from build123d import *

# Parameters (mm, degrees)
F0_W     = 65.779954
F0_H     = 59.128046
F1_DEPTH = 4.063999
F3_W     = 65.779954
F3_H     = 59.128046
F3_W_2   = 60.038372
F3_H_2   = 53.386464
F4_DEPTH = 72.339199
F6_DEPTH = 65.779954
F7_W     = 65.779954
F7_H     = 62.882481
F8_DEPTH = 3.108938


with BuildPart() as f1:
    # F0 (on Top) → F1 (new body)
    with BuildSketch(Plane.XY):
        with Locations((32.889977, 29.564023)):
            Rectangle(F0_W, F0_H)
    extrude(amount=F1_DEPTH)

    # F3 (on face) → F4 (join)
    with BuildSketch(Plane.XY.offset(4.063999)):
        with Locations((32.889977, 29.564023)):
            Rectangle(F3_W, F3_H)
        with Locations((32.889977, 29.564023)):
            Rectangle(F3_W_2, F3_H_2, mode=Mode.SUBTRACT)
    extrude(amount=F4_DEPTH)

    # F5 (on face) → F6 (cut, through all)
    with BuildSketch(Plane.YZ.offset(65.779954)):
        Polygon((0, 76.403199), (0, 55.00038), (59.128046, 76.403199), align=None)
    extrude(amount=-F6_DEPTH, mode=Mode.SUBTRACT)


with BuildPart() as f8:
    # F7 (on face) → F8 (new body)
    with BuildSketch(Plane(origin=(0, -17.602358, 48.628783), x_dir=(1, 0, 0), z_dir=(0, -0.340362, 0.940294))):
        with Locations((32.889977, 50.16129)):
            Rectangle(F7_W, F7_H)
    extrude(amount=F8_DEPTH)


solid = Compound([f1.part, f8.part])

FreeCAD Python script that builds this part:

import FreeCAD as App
import Part
import Sketcher
Q = App.Units.Quantity

doc = App.newDocument("Part")
body = doc.addObject("PartDesign::Body", "Body")

# Sketch on XY plane
sketch1 = doc.addObject("Sketcher::SketchObject", "Sketch")
body.addObject(sketch1)
sketch1.AttachmentSupport = (doc.XY_Plane, [""])
sketch1.MapMode = "FlatFace"
sketch1.addGeometry([
    Part.LineSegment(App.Vector(0, 59.128046, 0), App.Vector(0, 0, 0)),
    Part.LineSegment(App.Vector(0, 0, 0), App.Vector(65.779954, 0, 0)),
    Part.LineSegment(App.Vector(65.779954, 0, 0), App.Vector(65.779954, 59.128046, 0)),
    Part.LineSegment(App.Vector(65.779954, 59.128046, 0), App.Vector(0, 59.128046, 0)),
], False)
sketch1.addConstraint([
    Sketcher.Constraint("Coincident", 0, 2, 1, 1),
    Sketcher.Constraint("Coincident", 1, 2, 2, 1),
    Sketcher.Constraint("Coincident", 2, 2, 3, 1),
    Sketcher.Constraint("Coincident", 3, 2, 0, 1),
    Sketcher.Constraint("Vertical", 0),
    Sketcher.Constraint("Horizontal", 1),
    Sketcher.Constraint("Vertical", 2),
    Sketcher.Constraint("Horizontal", 3),
    Sketcher.Constraint("Coincident", 0, 2, -1, 1),
    Sketcher.Constraint("DistanceX", 1, 1, 1, 2, 65.779954),
    Sketcher.Constraint("DistanceY", 0, 2, 0, 1, 59.128046),
])
pad1 = doc.addObject("PartDesign::Pad", "Pad")
body.addObject(pad1)
pad1.Profile = sketch1
pad1.Length = Q("0.16 in")

# Sketch on XY plane
sketch2 = doc.addObject("Sketcher::SketchObject", "Sketch001")
body.addObject(sketch2)
sketch2.AttachmentSupport = (doc.XY_Plane, [""])
sketch2.MapMode = "FlatFace"
sketch2.AttachmentOffset = App.Placement(App.Vector(0, 0, 0.16 * 25.4), App.Rotation())
sketch2.addGeometry([
    Part.LineSegment(App.Vector(0, 59.128046, 0), App.Vector(0, 0, 0)),  # 0
    Part.LineSegment(App.Vector(0, 0, 0), App.Vector(65.779954, 0, 0)),  # 1
    Part.LineSegment(App.Vector(65.779954, 0, 0), App.Vector(65.779954, 59.128046, 0)),  # 2
    Part.LineSegment(App.Vector(65.779954, 59.128046, 0), App.Vector(0, 59.128046, 0)),  # 3
    Part.LineSegment(App.Vector(62.909163, 2.870791, 0), App.Vector(2.870791, 2.870791, 0)),  # 4
    Part.LineSegment(App.Vector(2.870791, 2.870791, 0), App.Vector(2.870791, 56.257255, 0)),  # 5
    Part.LineSegment(App.Vector(2.870791, 56.257255, 0), App.Vector(62.909163, 56.257255, 0)),  # 6
    Part.LineSegment(App.Vector(62.909163, 56.257255, 0), App.Vector(62.909163, 2.870791, 0)),  # 7
], False)
sketch2.addConstraint([
    Sketcher.Constraint("Coincident", 0, 2, 1, 1),
    Sketcher.Constraint("Coincident", 1, 2, 2, 1),
    Sketcher.Constraint("Coincident", 2, 2, 3, 1),
    Sketcher.Constraint("Coincident", 3, 2, 0, 1),
    Sketcher.Constraint("Coincident", 4, 2, 5, 1),
    Sketcher.Constraint("Coincident", 5, 2, 6, 1),
    Sketcher.Constraint("Coincident", 6, 2, 7, 1),
    Sketcher.Constraint("Coincident", 7, 2, 4, 1),
    Sketcher.Constraint("Vertical", 0),
    Sketcher.Constraint("Horizontal", 1),
    Sketcher.Constraint("Vertical", 2),
    Sketcher.Constraint("Horizontal", 3),
    Sketcher.Constraint("Horizontal", 4),
    Sketcher.Constraint("Vertical", 5),
    Sketcher.Constraint("Horizontal", 6),
    Sketcher.Constraint("Vertical", 7),
    Sketcher.Constraint("Coincident", 0, 2, -1, 1),
    Sketcher.Constraint("DistanceX", 1, 1, 1, 2, 65.779954),
    Sketcher.Constraint("DistanceX", 4, 2, 4, 1, 60.038372),
    Sketcher.Constraint("DistanceY", 0, 2, 0, 1, 59.128046),
    Sketcher.Constraint("DistanceY", 5, 1, 5, 2, 53.386464),
    Sketcher.Constraint("DistanceX", -1, 1, 4, 2, 2.870791),
    Sketcher.Constraint("DistanceY", -1, 1, 4, 2, 2.870791),
])
pad2 = doc.addObject("PartDesign::Pad", "Pad001")
body.addObject(pad2)
pad2.Profile = sketch2
pad2.Length = Q("2.848 in")

# Sketch on YZ plane
sketch3 = doc.addObject("Sketcher::SketchObject", "Sketch002")
body.addObject(sketch3)
sketch3.AttachmentSupport = (doc.YZ_Plane, [""])
sketch3.MapMode = "FlatFace"
sketch3.AttachmentOffset = App.Placement(App.Vector(0, 0, 65.779954), App.Rotation())
sketch3.addGeometry([
    Part.LineSegment(App.Vector(0, 76.403199, 0), App.Vector(0, 55.00038, 0)),
    Part.LineSegment(App.Vector(0, 55.00038, 0), App.Vector(59.128046, 76.403199, 0)),
    Part.LineSegment(App.Vector(59.128046, 76.403199, 0), App.Vector(0, 76.403199, 0)),
], False)
sketch3.addConstraint([
    Sketcher.Constraint("Coincident", 0, 2, 1, 1),
    Sketcher.Constraint("Coincident", 1, 2, 2, 1),
    Sketcher.Constraint("Coincident", 2, 2, 0, 1),
    Sketcher.Constraint("Vertical", 0),
    Sketcher.Constraint("Horizontal", 2),
    Sketcher.Constraint("PointOnObject", 0, 2, -2),
    Sketcher.Constraint("DistanceY", -1, 1, 1, 2, Q("3.008 in")),
    Sketcher.Constraint("DistanceY", 0, 2, 0, 1, 21.402819),
    Sketcher.Constraint("Distance", 1, 62.882482),
])
pocket1 = doc.addObject("PartDesign::Pocket", "Pocket")
body.addObject(pocket1)
pocket1.Profile = sketch3
pocket1.Type = "ThroughAll"
body2 = doc.addObject("PartDesign::Body", "Body001")

# Sketch on an angled plane
sketch4 = doc.addObject("Sketcher::SketchObject", "Sketch003")
body2.addObject(sketch4)
sketch4.Placement = App.Placement(App.Vector(0, -17.602358, 48.628783), App.Rotation(App.Vector(1, 0, 0), App.Vector(0, 0.940294424, 0.340362154), App.Vector(0, -0.340362154, 0.940294424), "ZXY"))
sketch4.addGeometry([
    Part.LineSegment(App.Vector(0, 81.60253, 0), App.Vector(0, 18.720049, 0)),
    Part.LineSegment(App.Vector(0, 18.720049, 0), App.Vector(65.779954, 18.720049, 0)),
    Part.LineSegment(App.Vector(65.779954, 18.720049, 0), App.Vector(65.779954, 81.60253, 0)),
    Part.LineSegment(App.Vector(65.779954, 81.60253, 0), App.Vector(0, 81.60253, 0)),
], False)
sketch4.addConstraint([
    Sketcher.Constraint("Coincident", 0, 2, 1, 1),
    Sketcher.Constraint("Coincident", 1, 2, 2, 1),
    Sketcher.Constraint("Coincident", 2, 2, 3, 1),
    Sketcher.Constraint("Coincident", 3, 2, 0, 1),
    Sketcher.Constraint("Vertical", 0),
    Sketcher.Constraint("Horizontal", 1),
    Sketcher.Constraint("Vertical", 2),
    Sketcher.Constraint("Horizontal", 3),
    Sketcher.Constraint("PointOnObject", 0, 2, -2),
    Sketcher.Constraint("DistanceY", 0, 2, 0, 1, 62.882481),
    Sketcher.Constraint("DistanceX", 1, 1, 1, 2, 65.779954),
    Sketcher.Constraint("DistanceY", -1, 1, 0, 2, 18.720049),
])
pad3 = doc.addObject("PartDesign::Pad", "Pad002")
body2.addObject(pad3)
pad3.Profile = sketch4
pad3.Length = 3.108938

doc.recompute()
